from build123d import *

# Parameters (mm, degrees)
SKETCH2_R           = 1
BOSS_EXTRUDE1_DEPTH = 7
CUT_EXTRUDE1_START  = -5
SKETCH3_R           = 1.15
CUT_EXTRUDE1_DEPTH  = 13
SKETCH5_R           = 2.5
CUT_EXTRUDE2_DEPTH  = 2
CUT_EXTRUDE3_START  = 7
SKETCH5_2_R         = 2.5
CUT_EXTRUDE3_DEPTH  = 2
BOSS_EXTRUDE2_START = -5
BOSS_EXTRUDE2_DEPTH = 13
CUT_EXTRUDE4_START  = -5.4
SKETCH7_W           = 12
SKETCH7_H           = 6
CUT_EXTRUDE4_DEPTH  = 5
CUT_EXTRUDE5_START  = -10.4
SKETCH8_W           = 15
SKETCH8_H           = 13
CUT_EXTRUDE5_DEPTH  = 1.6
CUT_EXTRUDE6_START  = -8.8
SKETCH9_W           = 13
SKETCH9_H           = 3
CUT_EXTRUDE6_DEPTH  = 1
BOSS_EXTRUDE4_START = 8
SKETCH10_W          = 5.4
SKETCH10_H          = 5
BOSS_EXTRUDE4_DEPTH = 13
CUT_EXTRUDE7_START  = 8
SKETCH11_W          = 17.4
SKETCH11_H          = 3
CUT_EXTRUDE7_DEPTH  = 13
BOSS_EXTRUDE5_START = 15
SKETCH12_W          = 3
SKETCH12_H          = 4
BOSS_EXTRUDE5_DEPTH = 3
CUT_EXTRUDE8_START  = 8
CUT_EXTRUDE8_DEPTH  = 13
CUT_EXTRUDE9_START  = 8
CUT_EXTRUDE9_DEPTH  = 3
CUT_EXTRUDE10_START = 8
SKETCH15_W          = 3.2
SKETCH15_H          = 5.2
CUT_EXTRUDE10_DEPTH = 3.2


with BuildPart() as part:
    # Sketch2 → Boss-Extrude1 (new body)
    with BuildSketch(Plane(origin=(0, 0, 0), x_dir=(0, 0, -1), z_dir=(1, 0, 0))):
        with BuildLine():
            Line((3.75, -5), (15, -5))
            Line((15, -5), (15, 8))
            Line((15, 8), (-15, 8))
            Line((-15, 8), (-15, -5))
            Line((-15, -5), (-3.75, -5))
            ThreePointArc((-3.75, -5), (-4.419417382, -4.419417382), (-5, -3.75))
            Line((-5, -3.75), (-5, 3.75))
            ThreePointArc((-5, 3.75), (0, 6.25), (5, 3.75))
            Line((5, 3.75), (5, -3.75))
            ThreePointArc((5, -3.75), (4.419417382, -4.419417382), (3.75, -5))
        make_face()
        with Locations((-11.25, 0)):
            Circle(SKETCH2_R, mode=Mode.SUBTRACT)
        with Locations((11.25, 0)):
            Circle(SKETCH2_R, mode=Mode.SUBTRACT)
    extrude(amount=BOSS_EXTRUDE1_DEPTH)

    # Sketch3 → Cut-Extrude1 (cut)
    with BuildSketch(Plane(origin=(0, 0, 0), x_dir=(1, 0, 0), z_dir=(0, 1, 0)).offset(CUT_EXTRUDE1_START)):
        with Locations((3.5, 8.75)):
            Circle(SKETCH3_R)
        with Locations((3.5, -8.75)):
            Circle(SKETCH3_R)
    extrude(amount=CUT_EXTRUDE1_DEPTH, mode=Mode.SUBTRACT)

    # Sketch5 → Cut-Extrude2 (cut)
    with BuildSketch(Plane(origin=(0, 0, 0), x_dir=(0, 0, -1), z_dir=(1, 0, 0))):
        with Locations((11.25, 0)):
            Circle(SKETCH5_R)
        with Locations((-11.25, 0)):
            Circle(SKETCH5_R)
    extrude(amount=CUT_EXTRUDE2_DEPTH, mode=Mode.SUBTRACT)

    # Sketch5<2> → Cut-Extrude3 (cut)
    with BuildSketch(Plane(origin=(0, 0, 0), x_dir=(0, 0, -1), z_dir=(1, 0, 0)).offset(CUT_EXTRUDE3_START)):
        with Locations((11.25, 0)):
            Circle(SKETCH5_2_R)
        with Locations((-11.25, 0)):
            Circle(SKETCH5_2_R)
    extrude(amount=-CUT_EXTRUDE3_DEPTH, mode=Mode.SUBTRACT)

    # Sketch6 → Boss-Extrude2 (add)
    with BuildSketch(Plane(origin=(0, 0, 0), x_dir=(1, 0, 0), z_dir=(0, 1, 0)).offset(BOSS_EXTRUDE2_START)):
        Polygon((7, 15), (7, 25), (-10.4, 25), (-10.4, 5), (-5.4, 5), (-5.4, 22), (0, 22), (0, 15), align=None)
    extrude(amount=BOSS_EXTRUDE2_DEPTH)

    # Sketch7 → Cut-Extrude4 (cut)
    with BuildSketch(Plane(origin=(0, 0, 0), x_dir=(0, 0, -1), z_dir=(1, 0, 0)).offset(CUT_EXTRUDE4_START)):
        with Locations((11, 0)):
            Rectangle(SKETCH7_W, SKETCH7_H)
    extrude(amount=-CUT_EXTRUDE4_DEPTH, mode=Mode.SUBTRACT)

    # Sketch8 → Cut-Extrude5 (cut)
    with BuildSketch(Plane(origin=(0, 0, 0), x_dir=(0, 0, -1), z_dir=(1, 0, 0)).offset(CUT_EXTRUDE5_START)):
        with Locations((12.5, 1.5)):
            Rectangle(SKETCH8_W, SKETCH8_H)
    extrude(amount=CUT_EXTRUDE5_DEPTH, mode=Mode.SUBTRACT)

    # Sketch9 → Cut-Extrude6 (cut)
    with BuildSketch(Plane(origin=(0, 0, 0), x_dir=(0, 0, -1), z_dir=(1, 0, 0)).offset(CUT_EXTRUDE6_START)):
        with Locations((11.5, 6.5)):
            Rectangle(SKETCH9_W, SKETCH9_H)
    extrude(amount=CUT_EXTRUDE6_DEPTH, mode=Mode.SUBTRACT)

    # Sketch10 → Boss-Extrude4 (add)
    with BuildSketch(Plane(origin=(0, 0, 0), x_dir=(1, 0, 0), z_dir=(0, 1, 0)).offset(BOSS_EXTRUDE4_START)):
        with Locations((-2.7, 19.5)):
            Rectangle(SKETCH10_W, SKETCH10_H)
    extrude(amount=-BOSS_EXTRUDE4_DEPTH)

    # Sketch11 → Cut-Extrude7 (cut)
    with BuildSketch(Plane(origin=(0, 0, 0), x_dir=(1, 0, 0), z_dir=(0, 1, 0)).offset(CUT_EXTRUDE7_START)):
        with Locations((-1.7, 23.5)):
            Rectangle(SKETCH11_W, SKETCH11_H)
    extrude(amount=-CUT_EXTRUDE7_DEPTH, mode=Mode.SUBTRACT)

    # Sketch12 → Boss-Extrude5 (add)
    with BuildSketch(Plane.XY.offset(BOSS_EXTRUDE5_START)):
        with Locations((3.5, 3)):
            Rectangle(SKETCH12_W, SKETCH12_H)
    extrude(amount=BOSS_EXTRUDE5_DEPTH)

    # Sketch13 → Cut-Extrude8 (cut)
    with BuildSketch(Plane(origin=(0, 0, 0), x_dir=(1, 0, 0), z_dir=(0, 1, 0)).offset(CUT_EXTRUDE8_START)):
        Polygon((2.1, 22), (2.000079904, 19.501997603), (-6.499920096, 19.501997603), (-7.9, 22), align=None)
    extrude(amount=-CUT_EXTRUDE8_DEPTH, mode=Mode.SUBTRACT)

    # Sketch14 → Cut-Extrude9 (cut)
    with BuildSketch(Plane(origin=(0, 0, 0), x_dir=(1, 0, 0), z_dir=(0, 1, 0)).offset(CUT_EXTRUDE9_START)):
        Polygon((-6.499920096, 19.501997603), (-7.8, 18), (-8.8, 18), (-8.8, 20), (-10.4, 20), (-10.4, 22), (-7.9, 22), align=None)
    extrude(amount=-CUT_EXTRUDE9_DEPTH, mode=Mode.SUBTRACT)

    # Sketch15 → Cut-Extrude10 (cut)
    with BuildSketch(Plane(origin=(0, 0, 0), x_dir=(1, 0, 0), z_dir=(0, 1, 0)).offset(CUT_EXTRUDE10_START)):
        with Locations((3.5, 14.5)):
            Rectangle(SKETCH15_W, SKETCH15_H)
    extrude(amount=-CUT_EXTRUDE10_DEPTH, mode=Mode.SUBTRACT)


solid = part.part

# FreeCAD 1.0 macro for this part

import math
import FreeCAD as App
import Part
import Sketcher

V = App.Vector
Q = App.Units.Quantity

doc = App.newDocument("Part")
params = doc.addObject("Spreadsheet::Sheet", "Params")
for row, (alias, value) in enumerate([
    ("sketch1_diameter", "2 mm"),
    ("sketch1_width", "13 mm"),
    ("sketch1_height", "30 mm"),
    ("sketch1_radius", "6.25 mm"),
    ("sketch1_width2", "7.5 mm"),
    ("pad1_length", "7 mm"),
    ("sketch2_diameter", "2.3 mm"),
    ("pocket1_length", "13 mm"),
    ("sketch3_diameter", "5 mm"),
    ("pocket2_length", "2 mm"),
    ("sketch4_diameter", "5 mm"),
    ("pocket3_length", "2 mm"),
    ("sketch5_width", "5 mm"),
    ("sketch5_width2", "7 mm"),
    ("sketch5_height", "10 mm"),
    ("sketch5_height2", "20 mm"),
    ("sketch5_width3", "17.4 mm"),
    ("pad2_length", "13 mm"),
    ("sketch6_width", "6 mm"),
    ("sketch6_height", "12 mm"),
    ("pocket4_length", "5 mm"),
    ("sketch7_width", "13 mm"),
    ("sketch7_height", "15 mm"),
    ("pocket5_length", "1.6 mm"),
    ("sketch8_width", "3 mm"),
    ("sketch8_height", "13 mm"),
    ("pocket6_length", "1 mm"),
    ("sketch9_height", "5 mm"),
    ("sketch9_width", "5.4 mm"),
    ("pad3_length", "13 mm"),
    ("sketch10_height", "3 mm"),
    ("sketch10_width", "17.4 mm"),
    ("pocket7_length", "13 mm"),
    ("sketch11_width", "3 mm"),
    ("sketch11_height", "4 mm"),
    ("pad4_length", "3 mm"),
    ("sketch12_width", "10 mm"),
    ("sketch12_width2", "8.5 mm"),
    ("sketch12_length", "2.5 mm"),
    ("pocket8_length", "13 mm"),
    ("sketch13_width", "1 mm"),
    ("sketch13_height", "2 mm"),
    ("sketch13_width2", "2.5 mm"),
    ("sketch13_width3", "1.6 mm"),
    ("pocket9_length", "3 mm"),
    ("sketch14_width", "3.2 mm"),
    ("sketch14_height", "5.2 mm"),
    ("pocket10_length", "3.2 mm"),
], start=1):
    params.set(f"A{row}", alias)
    params.set(f"B{row}", "=" + value)
    params.setAlias(f"B{row}", alias)

body = doc.addObject("PartDesign::Body", "Body")

# Sketch on YZ plane
sketch1 = doc.addObject("Sketcher::SketchObject", "Sketch")
body.addObject(sketch1)
sketch1.AttachmentSupport = (doc.YZ_Plane, [""])
sketch1.MapMode = "FlatFace"
sketch1.addGeometry([
    Part.LineSegment(V(-5, -3.8, 0), V(-5, -15, 0)),  # 0
    Part.LineSegment(V(-5, -15, 0), V(8, -15, 0)),  # 1
    Part.LineSegment(V(8, -15, 0), V(8, 15, 0)),  # 2
    Part.LineSegment(V(8, 15, 0), V(-5, 15, 0)),  # 3
    Part.LineSegment(V(-5, 15, 0), V(-5, 3.8, 0)),  # 4
    Part.ArcOfCircle(Part.Circle(V(0, 0, 0), V(0, 0, 1), 6.3), math.radians(126.87), math.radians(143.13)),  # 5
    Part.LineSegment(V(-3.8, 5, 0), V(3.8, 5, 0)),  # 6
    Part.ArcOfCircle(Part.Circle(V(0, 0, 0), V(0, 0, 1), 6.2), math.radians(-53), math.radians(53)),  # 7
    Part.LineSegment(V(3.8, -5, 0), V(-3.8, -5, 0)),  # 8
    Part.ArcOfCircle(Part.Circle(V(0, 0, 0), V(0, 0, 1), 6.3), math.radians(-143.13), math.radians(-126.87)),  # 9
    Part.Circle(V(0, 11.2, 0), V(0, 0, 1), 1),  # 10
    Part.Circle(V(0, -11.2, 0), V(0, 0, 1), 1),  # 11
], False)
sketch1.addConstraint([
    Sketcher.Constraint("Coincident", 0, 2, 1, 1),
    Sketcher.Constraint("Coincident", 1, 2, 2, 1),
    Sketcher.Constraint("Coincident", 2, 2, 3, 1),
    Sketcher.Constraint("Coincident", 3, 2, 4, 1),
    Sketcher.Constraint("Coincident", 4, 2, 5, 2),
    Sketcher.Constraint("Coincident", 5, 1, 6, 1),
    Sketcher.Constraint("Coincident", 6, 2, 7, 2),
    Sketcher.Constraint("Coincident", 7, 1, 8, 1),
    Sketcher.Constraint("Coincident", 8, 2, 9, 2),
    Sketcher.Constraint("Coincident", 9, 1, 0, 1),
    Sketcher.Constraint("Vertical", 0),
    Sketcher.Constraint("Horizontal", 1),
    Sketcher.Constraint("Vertical", 2),
    Sketcher.Constraint("Horizontal", 3),
    Sketcher.Constraint("Vertical", 4),
    Sketcher.Constraint("Horizontal", 6),
    Sketcher.Constraint("Horizontal", 8),
    Sketcher.Constraint("Coincident", 5, 3, -1, 1),
    Sketcher.Constraint("Coincident", 7, 3, -1, 1),
    Sketcher.Constraint("Coincident", 9, 3, -1, 1),
    Sketcher.Constraint("Equal", 5, 7),
    Sketcher.Constraint("Equal", 7, 9),
    Sketcher.Constraint("Equal", 10, 11),
    Sketcher.Constraint("Symmetric", 10, 3, 11, 3, -1, 1),
    Sketcher.Constraint("Symmetric", 0, 2, 3, 2, -1),
    Sketcher.Constraint("PointOnObject", 10, 3, -2),
    Sketcher.Constraint("Vertical", 6, 2, 7, 1),
    Sketcher.Constraint("Diameter", 10, Q("2 mm")),
    Sketcher.Constraint("DistanceX", 1, 1, 1, 2, Q("13 mm")),
    Sketcher.Constraint("DistanceY", 2, 1, 2, 2, Q("30 mm")),
    Sketcher.Constraint("Radius", 5, Q("6.25 mm")),
    Sketcher.Constraint("DistanceX", 6, 1, 6, 2, Q("7.5 mm")),
    Sketcher.Constraint("DistanceX", 0, 2, -1, 1, Q("5 mm")),
    Sketcher.Constraint("DistanceY", 11, 3, 10, 3, Q("22.5 mm")),
])
sketch1.setExpression("Constraints[27]", "Params.sketch1_diameter")
sketch1.setExpression("Constraints[28]", "Params.sketch1_width")
sketch1.setExpression("Constraints[29]", "Params.sketch1_height")
sketch1.setExpression("Constraints[30]", "Params.sketch1_radius")
sketch1.setExpression("Constraints[31]", "Params.sketch1_width2")
pad1 = doc.addObject("PartDesign::Pad", "Pad")
body.addObject(pad1)
pad1.Profile = sketch1
pad1.setExpression("Length", "Params.pad1_length")

# Sketch on XZ plane
sketch2 = doc.addObject("Sketcher::SketchObject", "Sketch001")
body.addObject(sketch2)
sketch2.AttachmentSupport = (doc.XZ_Plane, [""])
sketch2.MapMode = "FlatFace"
sketch2.AttachmentOffset = App.Placement(V(0, 0, 5), App.Rotation())
sketch2.addGeometry([
    Part.Circle(V(3.5, -8.8, 0), V(0, 0, 1), 1.1),
    Part.Circle(V(3.5, 8.8, 0), V(0, 0, 1), 1.1),
], False)
sketch2.addConstraint([
    Sketcher.Constraint("Equal", 0, 1),
    Sketcher.Constraint("Symmetric", 0, 3, 1, 3, -1),
    Sketcher.Constraint("Diameter", 0, Q("2.3 mm")),
    Sketcher.Constraint("DistanceX", -1, 1, 0, 3, Q("3.5 mm")),
    Sketcher.Constraint("DistanceY", 0, 3, 1, 3, Q("17.5 mm")),
])
sketch2.setExpression("Constraints[2]", "Params.sketch2_diameter")
pocket1 = doc.addObject("PartDesign::Pocket", "Pocket")
body.addObject(pocket1)
pocket1.Profile = sketch2
pocket1.setExpression("Length", "Params.pocket1_length")

# Sketch on YZ plane
sketch3 = doc.addObject("Sketcher::SketchObject", "Sketch002")
body.addObject(sketch3)
sketch3.AttachmentSupport = (doc.YZ_Plane, [""])
sketch3.MapMode = "FlatFace"
sketch3.addGeometry([
    Part.Circle(V(0, -11.2, 0), V(0, 0, 1), 2.5),
    Part.Circle(V(0, 11.2, 0), V(0, 0, 1), 2.5),
], False)
sketch3.addConstraint([
    Sketcher.Constraint("Equal", 0, 1),
    Sketcher.Constraint("Symmetric", 0, 3, 1, 3, -1, 1),
    Sketcher.Constraint("PointOnObject", 0, 3, -2),
    Sketcher.Constraint("Diameter", 0, Q("5 mm")),
    Sketcher.Constraint("DistanceY", 0, 3, 1, 3, Q("22.5 mm")),
])
sketch3.setExpression("Constraints[3]", "Params.sketch3_diameter")
pocket2 = doc.addObject("PartDesign::Pocket", "Pocket001")
body.addObject(pocket2)
pocket2.Profile = sketch3
pocket2.setExpression("Length", "Params.pocket2_length")
pocket2.Reversed = True

# Sketch on YZ plane
sketch4 = doc.addObject("Sketcher::SketchObject", "Sketch003")
body.addObject(sketch4)
sketch4.AttachmentSupport = (doc.YZ_Plane, [""])
sketch4.MapMode = "FlatFace"
sketch4.AttachmentOffset = App.Placement(V(0, 0, 7), App.Rotation())
sketch4.addGeometry([
    Part.Circle(V(0, -11.2, 0), V(0, 0, 1), 2.5),
    Part.Circle(V(0, 11.2, 0), V(0, 0, 1), 2.5),
], False)
sketch4.addConstraint([
    Sketcher.Constraint("Equal", 0, 1),
    Sketcher.Constraint("Symmetric", 0, 3, 1, 3, -1, 1),
    Sketcher.Constraint("PointOnObject", 0, 3, -2),
    Sketcher.Constraint("Diameter", 0, Q("5 mm")),
    Sketcher.Constraint("DistanceY", 0, 3, 1, 3, Q("22.5 mm")),
])
sketch4.setExpression("Constraints[3]", "Params.sketch4_diameter")
pocket3 = doc.addObject("PartDesign::Pocket", "Pocket002")
body.addObject(pocket3)
pocket3.Profile = sketch4
pocket3.setExpression("Length", "Params.pocket3_length")

# Sketch on XZ plane
sketch5 = doc.addObject("Sketcher::SketchObject", "Sketch004")
body.addObject(sketch5)
sketch5.AttachmentSupport = (doc.XZ_Plane, [""])
sketch5.MapMode = "FlatFace"
sketch5.AttachmentOffset = App.Placement(V(0, 0, 5), App.Rotation())
sketch5.addGeometry([
    Part.LineSegment(V(7, -15, 0), V(7, -25, 0)),  # 0
    Part.LineSegment(V(7, -25, 0), V(-10, -25, 0)),  # 1
    Part.LineSegment(V(-10, -25, 0), V(-10, -5, 0)),  # 2
    Part.LineSegment(V(-10, -5, 0), V(-5, -5, 0)),  # 3
    Part.LineSegment(V(-5, -5, 0), V(-5, -22, 0)),  # 4
    Part.LineSegment(V(-5, -22, 0), V(0, -22, 0)),  # 5
    Part.LineSegment(V(0, -22, 0), V(0, -15, 0)),  # 6
    Part.LineSegment(V(0, -15, 0), V(7, -15, 0)),  # 7
], False)
sketch5.addConstraint([
    Sketcher.Constraint("Coincident", 0, 2, 1, 1),
    Sketcher.Constraint("Coincident", 1, 2, 2, 1),
    Sketcher.Constraint("Coincident", 2, 2, 3, 1),
    Sketcher.Constraint("Coincident", 3, 2, 4, 1),
    Sketcher.Constraint("Coincident", 4, 2, 5, 1),
    Sketcher.Constraint("Coincident", 5, 2, 6, 1),
    Sketcher.Constraint("Coincident", 6, 2, 7, 1),
    Sketcher.Constraint("Coincident", 7, 2, 0, 1),
    Sketcher.Constraint("Vertical", 0),
    Sketcher.Constraint("Horizontal", 1),
    Sketcher.Constraint("Vertical", 2),
    Sketcher.Constraint("Horizontal", 3),
    Sketcher.Constraint("Vertical", 4),
    Sketcher.Constraint("Horizontal", 5),
    Sketcher.Constraint("Vertical", 6),
    Sketcher.Constraint("Horizontal", 7),
    Sketcher.Constraint("PointOnObject", 5, 2, -2),
    Sketcher.Constraint("Equal", 7, 6),
    Sketcher.Constraint("DistanceX", 3, 1, 3, 2, Q("5 mm")),
    Sketcher.Constraint("DistanceX", 7, 1, 7, 2, Q("7 mm")),
    Sketcher.Constraint("DistanceY", 0, 2, 0, 1, Q("10 mm")),
    Sketcher.Constraint("DistanceY", 2, 1, 2, 2, Q("20 mm")),
    Sketcher.Constraint("DistanceX", 1, 2, 1, 1, Q("17.4 mm")),
    Sketcher.Constraint("DistanceY", 0, 2, -1, 1, Q("25 mm")),
])
sketch5.setExpression("Constraints[18]", "Params.sketch5_width")
sketch5.setExpression("Constraints[19]", "Params.sketch5_width2")
sketch5.setExpression("Constraints[20]", "Params.sketch5_height")
sketch5.setExpression("Constraints[21]", "Params.sketch5_height2")
sketch5.setExpression("Constraints[22]", "Params.sketch5_width3")
pad2 = doc.addObject("PartDesign::Pad", "Pad001")
body.addObject(pad2)
pad2.Profile = sketch5
pad2.setExpression("Length", "Params.pad2_length")
pad2.Reversed = True

# Sketch on YZ plane
sketch6 = doc.addObject("Sketcher::SketchObject", "Sketch005")
body.addObject(sketch6)
sketch6.AttachmentSupport = (doc.YZ_Plane, [""])
sketch6.MapMode = "FlatFace"
sketch6.AttachmentOffset = App.Placement(V(0, 0, -5.4), App.Rotation())
sketch6.addGeometry([
    Part.LineSegment(V(3, -5, 0), V(-3, -5, 0)),
    Part.LineSegment(V(-3, -5, 0), V(-3, -17, 0)),
    Part.LineSegment(V(-3, -17, 0), V(3, -17, 0)),
    Part.LineSegment(V(3, -17, 0), V(3, -5, 0)),
], False)
sketch6.addConstraint([
    Sketcher.Constraint("Coincident", 0, 2, 1, 1),
    Sketcher.Constraint("Coincident", 1, 2, 2, 1),
    Sketcher.Constraint("Coincident", 2, 2, 3, 1),
    Sketcher.Constraint("Coincident", 3, 2, 0, 1),
    Sketcher.Constraint("Horizontal", 0),
    Sketcher.Constraint("Vertical", 1),
    Sketcher.Constraint("Horizontal", 2),
    Sketcher.Constraint("Vertical", 3),
    Sketcher.Constraint("DistanceX", 0, 2, 0, 1, Q("6 mm")),
    Sketcher.Constraint("DistanceY", 1, 2, 1, 1, Q("12 mm")),
    Sketcher.Constraint("DistanceX", 0, 2, -1, 1, Q("3 mm")),
    Sketcher.Constraint("DistanceY", 0, 2, -1, 1, Q("5 mm")),
])
sketch6.setExpression("Constraints[8]", "Params.sketch6_width")
sketch6.setExpression("Constraints[9]", "Params.sketch6_height")
pocket4 = doc.addObject("PartDesign::Pocket", "Pocket003")
body.addObject(pocket4)
pocket4.Profile = sketch6
pocket4.setExpression("Length", "Params.pocket4_length")

# Sketch on YZ plane
sketch7 = doc.addObject("Sketcher::SketchObject", "Sketch006")
body.addObject(sketch7)
sketch7.AttachmentSupport = (doc.YZ_Plane, [""])
sketch7.MapMode = "FlatFace"
sketch7.AttachmentOffset = App.Placement(V(0, 0, -10.4), App.Rotation())
sketch7.addGeometry([
    Part.LineSegment(V(8, -5, 0), V(-5, -5, 0)),
    Part.LineSegment(V(-5, -5, 0), V(-5, -20, 0)),
    Part.LineSegment(V(-5, -20, 0), V(8, -20, 0)),
    Part.LineSegment(V(8, -20, 0), V(8, -5, 0)),
], False)
sketch7.addConstraint([
    Sketcher.Constraint("Coincident", 0, 2, 1, 1),
    Sketcher.Constraint("Coincident", 1, 2, 2, 1),
    Sketcher.Constraint("Coincident", 2, 2, 3, 1),
    Sketcher.Constraint("Coincident", 3, 2, 0, 1),
    Sketcher.Constraint("Horizontal", 0),
    Sketcher.Constraint("Vertical", 1),
    Sketcher.Constraint("Horizontal", 2),
    Sketcher.Constraint("Vertical", 3),
    Sketcher.Constraint("DistanceX", 0, 2, 0, 1, Q("13 mm")),
    Sketcher.Constraint("DistanceY", 1, 2, 1, 1, Q("15 mm")),
    Sketcher.Constraint("DistanceX", 0, 2, -1, 1, Q("5 mm")),
    Sketcher.Constraint("DistanceY", 0, 2, -1, 1, Q("5 mm")),
])
sketch7.setExpression("Constraints[8]", "Params.sketch7_width")
sketch7.setExpression("Constraints[9]", "Params.sketch7_height")
pocket5 = doc.addObject("PartDesign::Pocket", "Pocket004")
body.addObject(pocket5)
pocket5.Profile = sketch7
pocket5.setExpression("Length", "Params.pocket5_length")
pocket5.Reversed = True

# Sketch on YZ plane
sketch8 = doc.addObject("Sketcher::SketchObject", "Sketch007")
body.addObject(sketch8)
sketch8.AttachmentSupport = (doc.YZ_Plane, [""])
sketch8.MapMode = "FlatFace"
sketch8.AttachmentOffset = App.Placement(V(0, 0, -8.8), App.Rotation())
sketch8.addGeometry([
    Part.LineSegment(V(8, -5, 0), V(5, -5, 0)),
    Part.LineSegment(V(5, -5, 0), V(5, -18, 0)),
    Part.LineSegment(V(5, -18, 0), V(8, -18, 0)),
    Part.LineSegment(V(8, -18, 0), V(8, -5, 0)),
], False)
sketch8.addConstraint([
    Sketcher.Constraint("Coincident", 0, 2, 1, 1),
    Sketcher.Constraint("Coincident", 1, 2, 2, 1),
    Sketcher.Constraint("Coincident", 2, 2, 3, 1),
    Sketcher.Constraint("Coincident", 3, 2, 0, 1),
    Sketcher.Constraint("Horizontal", 0),
    Sketcher.Constraint("Vertical", 1),
    Sketcher.Constraint("Horizontal", 2),
    Sketcher.Constraint("Vertical", 3),
    Sketcher.Constraint("DistanceX", 0, 2, 0, 1, Q("3 mm")),
    Sketcher.Constraint("DistanceY", 1, 2, 1, 1, Q("13 mm")),
    Sketcher.Constraint("DistanceX", -1, 1, 0, 2, Q("5 mm")),
    Sketcher.Constraint("DistanceY", 0, 2, -1, 1, Q("5 mm")),
])
sketch8.setExpression("Constraints[8]", "Params.sketch8_width")
sketch8.setExpression("Constraints[9]", "Params.sketch8_height")
pocket6 = doc.addObject("PartDesign::Pocket", "Pocket005")
body.addObject(pocket6)
pocket6.Profile = sketch8
pocket6.setExpression("Length", "Params.pocket6_length")
pocket6.Reversed = True

# Sketch on XZ plane
sketch9 = doc.addObject("Sketcher::SketchObject", "Sketch008")
body.addObject(sketch9)
sketch9.AttachmentSupport = (doc.XZ_Plane, [""])
sketch9.MapMode = "FlatFace"
sketch9.AttachmentOffset = App.Placement(V(0, 0, -8), App.Rotation())
sketch9.addGeometry([
    Part.LineSegment(V(-5, -22, 0), V(-5, -17, 0)),
    Part.LineSegment(V(-5, -17, 0), V(0, -17, 0)),
    Part.LineSegment(V(0, -17, 0), V(0, -22, 0)),
    Part.LineSegment(V(0, -22, 0), V(-5, -22, 0)),
], False)
sketch9.addConstraint([
    Sketcher.Constraint("Coincident", 0, 2, 1, 1),
    Sketcher.Constraint("Coincident", 1, 2, 2, 1),
    Sketcher.Constraint("Coincident", 2, 2, 3, 1),
    Sketcher.Constraint("Coincident", 3, 2, 0, 1),
    Sketcher.Constraint("Vertical", 0),
    Sketcher.Constraint("Horizontal", 1),
    Sketcher.Constraint("Vertical", 2),
    Sketcher.Constraint("Horizontal", 3),
    Sketcher.Constraint("PointOnObject", 1, 2, -2),
    Sketcher.Constraint("DistanceY", 0, 1, 0, 2, Q("5 mm")),
    Sketcher.Constraint("DistanceX", 1, 1, 1, 2, Q("5.4 mm")),
    Sketcher.Constraint("DistanceY", 0, 2, -1, 1, Q("17 mm")),
])
sketch9.setExpression("Constraints[9]", "Params.sketch9_height")
sketch9.setExpression("Constraints[10]", "Params.sketch9_width")
pad3 = doc.addObject("PartDesign::Pad", "Pad002")
body.addObject(pad3)
pad3.Profile = sketch9
pad3.setExpression("Length", "Params.pad3_length")

# Sketch on XZ plane
sketch10 = doc.addObject("Sketcher::SketchObject", "Sketch009")
body.addObject(sketch10)
sketch10.AttachmentSupport = (doc.XZ_Plane, [""])
sketch10.MapMode = "FlatFace"
sketch10.AttachmentOffset = App.Placement(V(0, 0, -8), App.Rotation())
sketch10.addGeometry([
    Part.LineSegment(V(-10.4, -25, 0), V(-10.4, -22, 0)),
    Part.LineSegment(V(-10.4, -22, 0), V(7, -22, 0)),
    Part.LineSegment(V(7, -22, 0), V(7, -25, 0)),
    Part.LineSegment(V(7, -25, 0), V(-10.4, -25, 0)),
], False)
sketch10.addConstraint([
    Sketcher.Constraint("Coincident", 0, 2, 1, 1),
    Sketcher.Constraint("Coincident", 1, 2, 2, 1),
    Sketcher.Constraint("Coincident", 2, 2, 3, 1),
    Sketcher.Constraint("Coincident", 3, 2, 0, 1),
    Sketcher.Constraint("Vertical", 0),
    Sketcher.Constraint("Horizontal", 1),
    Sketcher.Constraint("Vertical", 2),
    Sketcher.Constraint("Horizontal", 3),
    Sketcher.Constraint("DistanceY", 0, 1, 0, 2, Q("3 mm")),
    Sketcher.Constraint("DistanceX", 1, 1, 1, 2, Q("17.4 mm")),
    Sketcher.Constraint("DistanceY", 0, 2, -1, 1, Q("22 mm")),
    Sketcher.Constraint("DistanceX", -1, 1, 1, 2, Q("7 mm")),
])
sketch10.setExpression("Constraints[8]", "Params.sketch10_height")
sketch10.setExpression("Constraints[9]", "Params.sketch10_width")
pocket7 = doc.addObject("PartDesign::Pocket", "Pocket006")
body.addObject(pocket7)
pocket7.Profile = sketch10
pocket7.setExpression("Length", "Params.pocket7_length")
pocket7.Reversed = True

# Sketch on XY plane
sketch11 = doc.addObject("Sketcher::SketchObject", "Sketch010")
body.addObject(sketch11)
sketch11.AttachmentSupport = (doc.XY_Plane, [""])
sketch11.MapMode = "FlatFace"
sketch11.AttachmentOffset = App.Placement(V(0, 0, 15), App.Rotation())
sketch11.addGeometry([
    Part.LineSegment(V(2, 5, 0), V(2, 1, 0)),
    Part.LineSegment(V(2, 1, 0), V(5, 1, 0)),
    Part.LineSegment(V(5, 1, 0), V(5, 5, 0)),
    Part.LineSegment(V(5, 5, 0), V(2, 5, 0)),
], False)
sketch11.addConstraint([
    Sketcher.Constraint("Coincident", 0, 2, 1, 1),
    Sketcher.Constraint("Coincident", 1, 2, 2, 1),
    Sketcher.Constraint("Coincident", 2, 2, 3, 1),
    Sketcher.Constraint("Coincident", 3, 2, 0, 1),
    Sketcher.Constraint("Vertical", 0),
    Sketcher.Constraint("Horizontal", 1),
    Sketcher.Constraint("Vertical", 2),
    Sketcher.Constraint("Horizontal", 3),
    Sketcher.Constraint("DistanceX", 1, 1, 1, 2, Q("3 mm")),
    Sketcher.Constraint("DistanceY", 0, 2, 0, 1, Q("4 mm")),
    Sketcher.Constraint("DistanceX", -1, 1, 0, 2, Q("2 mm")),
    Sketcher.Constraint("DistanceY", -1, 1, 0, 2, Q("1 mm")),
])
sketch11.setExpression("Constraints[8]", "Params.sketch11_width")
sketch11.setExpression("Constraints[9]", "Params.sketch11_height")
pad4 = doc.addObject("PartDesign::Pad", "Pad003")
body.addObject(pad4)
pad4.Profile = sketch11
pad4.setExpression("Length", "Params.pad4_length")

# Sketch on XZ plane
sketch12 = doc.addObject("Sketcher::SketchObject", "Sketch011")
body.addObject(sketch12)
sketch12.AttachmentSupport = (doc.XZ_Plane, [""])
sketch12.MapMode = "FlatFace"
sketch12.AttachmentOffset = App.Placement(V(0, 0, -8), App.Rotation())
sketch12.addGeometry([
    Part.LineSegment(V(2, -19.5, 0), V(2.1, -22, 0)),
    Part.LineSegment(V(2.1, -22, 0), V(-7.9, -22, 0)),
    Part.LineSegment(V(-7.9, -22, 0), V(-6.5, -19.5, 0)),
    Part.LineSegment(V(-6.5, -19.5, 0), V(2, -19.5, 0)),
], False)
sketch12.addConstraint([
    Sketcher.Constraint("Coincident", 0, 2, 1, 1),
    Sketcher.Constraint("Coincident", 1, 2, 2, 1),
    Sketcher.Constraint("Coincident", 2, 2, 3, 1),
    Sketcher.Constraint("Coincident", 3, 2, 0, 1),
    Sketcher.Constraint("Horizontal", 1),
    Sketcher.Constraint("Horizontal", 3),
    Sketcher.Constraint("DistanceX", 1, 2, 1, 1, Q("10 mm")),
    Sketcher.Constraint("DistanceX", 3, 1, 3, 2, Q("8.5 mm")),
    Sketcher.Constraint("DistanceY", 0, 2, -1, 1, Q("22 mm")),
    Sketcher.Constraint("Distance", 0, Q("2.5 mm")),
    Sketcher.Constraint("DistanceX", -1, 1, 0, 2, Q("2.1 mm")),
    Sketcher.Constraint("DistanceX", 2, 2, -1, 1, Q("6.49992 mm")),
])
sketch12.setExpression("Constraints[6]", "Params.sketch12_width")
sketch12.setExpression("Constraints[7]", "Params.sketch12_width2")
sketch12.setExpression("Constraints[9]", "Params.sketch12_length")
pocket8 = doc.addObject("PartDesign::Pocket", "Pocket007")
body.addObject(pocket8)
pocket8.Profile = sketch12
pocket8.setExpression("Length", "Params.pocket8_length")
pocket8.Reversed = True

# Sketch on XZ plane
sketch13 = doc.addObject("Sketcher::SketchObject", "Sketch012")
body.addObject(sketch13)
sketch13.AttachmentSupport = (doc.XZ_Plane, [""])
sketch13.MapMode = "FlatFace"
sketch13.AttachmentOffset = App.Placement(V(0, 0, -8), App.Rotation())
sketch13.addGeometry([
    Part.LineSegment(V(-7.8, -18, 0), V(-6.5, -19.5, 0)),  # 0
    Part.LineSegment(V(-6.5, -19.5, 0), V(-7.9, -22, 0)),  # 1
    Part.LineSegment(V(-7.9, -22, 0), V(-10.4, -22, 0)),  # 2
    Part.LineSegment(V(-10.4, -22, 0), V(-10.4, -20, 0)),  # 3
    Part.LineSegment(V(-10.4, -20, 0), V(-8.8, -20, 0)),  # 4
    Part.LineSegment(V(-8.8, -20, 0), V(-8.8, -18, 0)),  # 5
    Part.LineSegment(V(-8.8, -18, 0), V(-7.8, -18, 0)),  # 6
], False)
sketch13.addConstraint([
    Sketcher.Constraint("Coincident", 0, 2, 1, 1),
    Sketcher.Constraint("Coincident", 1, 2, 2, 1),
    Sketcher.Constraint("Coincident", 2, 2, 3, 1),
    Sketcher.Constraint("Coincident", 3, 2, 4, 1),
    Sketcher.Constraint("Coincident", 4, 2, 5, 1),
    Sketcher.Constraint("Coincident", 5, 2, 6, 1),
    Sketcher.Constraint("Coincident", 6, 2, 0, 1),
    Sketcher.Constraint("Horizontal", 2),
    Sketcher.Constraint("Vertical", 3),
    Sketcher.Constraint("Horizontal", 4),
    Sketcher.Constraint("Vertical", 5),
    Sketcher.Constraint("Horizontal", 6),
    Sketcher.Constraint("Equal", 3, 5),
    Sketcher.Constraint("DistanceX", 6, 1, 6, 2, Q("1 mm")),
    Sketcher.Constraint("DistanceY", 3, 1, 3, 2, Q("2 mm")),
    Sketcher.Constraint("DistanceX", 2, 2, 2, 1, Q("2.5 mm")),
    Sketcher.Constraint("DistanceX", 4, 1, 4, 2, Q("1.6 mm")),
    Sketcher.Constraint("DistanceY", 1, 2, -1, 1, Q("22 mm")),
    Sketcher.Constraint("DistanceX", 1, 2, -1, 1, Q("7.9 mm")),
    Sketcher.Constraint("DistanceX", 0, 2, -1, 1, Q("6.49992 mm")),
    Sketcher.Constraint("Distance", 0, Q("1.986506 mm")),
])
sketch13.setExpression("Constraints[13]", "Params.sketch13_width")
sketch13.setExpression("Constraints[14]", "Params.sketch13_height")
sketch13.setExpression("Constraints[15]", "Params.sketch13_width2")
sketch13.setExpression("Constraints[16]", "Params.sketch13_width3")
pocket9 = doc.addObject("PartDesign::Pocket", "Pocket008")
body.addObject(pocket9)
pocket9.Profile = sketch13
pocket9.setExpression("Length", "Params.pocket9_length")
pocket9.Reversed = True

# Sketch on XZ plane
sketch14 = doc.addObject("Sketcher::SketchObject", "Sketch013")
body.addObject(sketch14)
sketch14.AttachmentSupport = (doc.XZ_Plane, [""])
sketch14.MapMode = "FlatFace"
sketch14.AttachmentOffset = App.Placement(V(0, 0, -8), App.Rotation())
sketch14.addGeometry([
    Part.LineSegment(V(1.9, -17.1, 0), V(1.9, -11.9, 0)),
    Part.LineSegment(V(1.9, -11.9, 0), V(5.1, -11.9, 0)),
    Part.LineSegment(V(5.1, -11.9, 0), V(5.1, -17.1, 0)),
    Part.LineSegment(V(5.1, -17.1, 0), V(1.9, -17.1, 0)),
], False)
sketch14.addConstraint([
    Sketcher.Constraint("Coincident", 0, 2, 1, 1),
    Sketcher.Constraint("Coincident", 1, 2, 2, 1),
    Sketcher.Constraint("Coincident", 2, 2, 3, 1),
    Sketcher.Constraint("Coincident", 3, 2, 0, 1),
    Sketcher.Constraint("Vertical", 0),
    Sketcher.Constraint("Horizontal", 1),
    Sketcher.Constraint("Vertical", 2),
    Sketcher.Constraint("Horizontal", 3),
    Sketcher.Constraint("DistanceX", 1, 1, 1, 2, Q("3.2 mm")),
    Sketcher.Constraint("DistanceY", 0, 1, 0, 2, Q("5.2 mm")),
    Sketcher.Constraint("DistanceX", -1, 1, 0, 2, Q("1.9 mm")),
    Sketcher.Constraint("DistanceY", 0, 2, -1, 1, Q("11.9 mm")),
])
sketch14.setExpression("Constraints[8]", "Params.sketch14_width")
sketch14.setExpression("Constraints[9]", "Params.sketch14_height")
pocket10 = doc.addObject("PartDesign::Pocket", "Pocket009")
body.addObject(pocket10)
pocket10.Profile = sketch14
pocket10.setExpression("Length", "Params.pocket10_length")
pocket10.Reversed = True

doc.recompute()
